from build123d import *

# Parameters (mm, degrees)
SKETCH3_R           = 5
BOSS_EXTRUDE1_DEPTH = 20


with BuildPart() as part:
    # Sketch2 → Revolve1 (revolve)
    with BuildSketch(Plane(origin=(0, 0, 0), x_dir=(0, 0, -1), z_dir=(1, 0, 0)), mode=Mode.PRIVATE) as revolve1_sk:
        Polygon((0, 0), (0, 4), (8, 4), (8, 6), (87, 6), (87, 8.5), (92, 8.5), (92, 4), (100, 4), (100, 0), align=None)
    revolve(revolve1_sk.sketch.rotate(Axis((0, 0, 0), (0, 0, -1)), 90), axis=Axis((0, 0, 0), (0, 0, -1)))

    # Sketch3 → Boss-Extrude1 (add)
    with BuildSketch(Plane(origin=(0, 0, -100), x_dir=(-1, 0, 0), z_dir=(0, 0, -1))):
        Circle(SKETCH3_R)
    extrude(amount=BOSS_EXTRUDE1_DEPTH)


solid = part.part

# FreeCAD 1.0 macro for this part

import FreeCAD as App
import Part
import Sketcher

doc = App.newDocument("Part")
params = doc.addObject("Spreadsheet::Sheet", "Params")
for row, (alias, value) in enumerate([
    ("sketch1_width", "4 mm"),
    ("sketch1_width2", "2 mm"),
    ("sketch1_height", "100 mm"),
    ("sketch1_height2", "8 mm"),
    ("sketch1_height3", "5 mm"),
    ("revolution_angle", "360 deg"),
    ("sketch2_diameter", "10 mm"),
    ("pad1_length", "20 mm"),
], start=1):
    params.set(f"A{row}", alias)
    params.set(f"B{row}", "=" + value)
    params.setAlias(f"B{row}", alias)

body = doc.addObject("PartDesign::Body", "Body")

# Sketch on YZ plane
sketch1 = body.newObject("Sketcher::SketchObject", "Sketch")
sketch1.AttachmentSupport = (doc.getObject("YZ_Plane"), [""])
sketch1.MapMode = "FlatFace"
sketch1.addGeometry(Part.LineSegment(App.Vector(4, 0, 0), App.Vector(0, 0, 0)), False)
sketch1.addGeometry(Part.LineSegment(App.Vector(0, 0, 0), App.Vector(0, -100, 0)), False)
sketch1.addGeometry(Part.LineSegment(App.Vector(0, -100, 0), App.Vector(4, -100, 0)), False)
sketch1.addGeometry(Part.LineSegment(App.Vector(4, -100, 0), App.Vector(4, -92, 0)), False)
sketch1.addGeometry(Part.LineSegment(App.Vector(4, -92, 0), App.Vector(8.5, -92, 0)), False)
sketch1.addGeometry(Part.LineSegment(App.Vector(8.5, -92, 0), App.Vector(8.5, -87, 0)), False)
sketch1.addGeometry(Part.LineSegment(App.Vector(8.5, -87, 0), App.Vector(6, -87, 0)), False)
sketch1.addGeometry(Part.LineSegment(App.Vector(6, -87, 0), App.Vector(6, -8, 0)), False)
sketch1.addGeometry(Part.LineSegment(App.Vector(6, -8, 0), App.Vector(4, -8, 0)), False)
sketch1.addGeometry(Part.LineSegment(App.Vector(4, -8, 0), App.Vector(4, 0, 0)), False)
sketch1.addConstraint(Sketcher.Constraint("Coincident", 0, 2, 1, 1))
sketch1.addConstraint(Sketcher.Constraint("Coincident", 1, 2, 2, 1))
sketch1.addConstraint(Sketcher.Constraint("Coincident", 2, 2, 3, 1))
sketch1.addConstraint(Sketcher.Constraint("Coincident", 3, 2, 4, 1))
sketch1.addConstraint(Sketcher.Constraint("Coincident", 4, 2, 5, 1))
sketch1.addConstraint(Sketcher.Constraint("Coincident", 5, 2, 6, 1))
sketch1.addConstraint(Sketcher.Constraint("Coincident", 6, 2, 7, 1))
sketch1.addConstraint(Sketcher.Constraint("Coincident", 7, 2, 8, 1))
sketch1.addConstraint(Sketcher.Constraint("Coincident", 8, 2, 9, 1))
sketch1.addConstraint(Sketcher.Constraint("Coincident", 9, 2, 0, 1))
sketch1.addConstraint(Sketcher.Constraint("Horizontal", 0))
sketch1.addConstraint(Sketcher.Constraint("Vertical", 1))
sketch1.addConstraint(Sketcher.Constraint("Horizontal", 2))
sketch1.addConstraint(Sketcher.Constraint("Vertical", 3))
sketch1.addConstraint(Sketcher.Constraint("Horizontal", 4))
sketch1.addConstraint(Sketcher.Constraint("Vertical", 5))
sketch1.addConstraint(Sketcher.Constraint("Horizontal", 6))
sketch1.addConstraint(Sketcher.Constraint("Vertical", 7))
sketch1.addConstraint(Sketcher.Constraint("Horizontal", 8))
sketch1.addConstraint(Sketcher.Constraint("Vertical", 9))
sketch1.addConstraint(Sketcher.Constraint("Coincident", 0, 2, -1, 1))
sketch1.addConstraint(Sketcher.Constraint("Vertical", 3, 2, 8, 2))
sketch1.addConstraint(Sketcher.Constraint("Equal", 3, 9))
sketch1.addConstraint(Sketcher.Constraint("DistanceX", 0, 2, 0, 1, 4.0))
sketch1.addConstraint(Sketcher.Constraint("DistanceX", 8, 2, 8, 1, 2.0))
sketch1.addConstraint(Sketcher.Constraint("DistanceY", 1, 2, 1, 1, 100.0))
sketch1.addConstraint(Sketcher.Constraint("DistanceY", 3, 1, 3, 2, 8.0))
sketch1.addConstraint(Sketcher.Constraint("DistanceY", 5, 1, 5, 2, 5.0))
sketch1.addConstraint(Sketcher.Constraint("DistanceX", 4, 1, 4, 2, 4.5))
sketch1.setExpression("Constraints[23]", "Params.sketch1_width")
sketch1.setExpression("Constraints[24]", "Params.sketch1_width2")
sketch1.setExpression("Constraints[25]", "Params.sketch1_height")
sketch1.setExpression("Constraints[26]", "Params.sketch1_height2")
sketch1.setExpression("Constraints[27]", "Params.sketch1_height3")
revolution = body.newObject("PartDesign::Revolution", "Revolution")
revolution.Profile = sketch1
revolution.ReferenceAxis = (sketch1, ["V_Axis"])
revolution.setExpression("Angle", "Params.revolution_angle")

# Sketch on XY plane
sketch2 = body.newObject("Sketcher::SketchObject", "Sketch001")
sketch2.AttachmentSupport = (doc.getObject("XY_Plane"), [""])
sketch2.MapMode = "FlatFace"
sketch2.AttachmentOffset = App.Placement(App.Vector(0, 0, -100), App.Rotation())
sketch2.addGeometry(Part.Circle(App.Vector(0, 0, 0), App.Vector(0, 0, 1), 5), False)
sketch2.addConstraint(Sketcher.Constraint("Coincident", 0, 3, -1, 1))
sketch2.addConstraint(Sketcher.Constraint("Diameter", 0, 10.0))
sketch2.setExpression("Constraints[1]", "Params.sketch2_diameter")
pad1 = body.newObject("PartDesign::Pad", "Pad")
pad1.Profile = sketch2
pad1.setExpression("Length", "Params.pad1_length")
pad1.Reversed = True

doc.recompute()
